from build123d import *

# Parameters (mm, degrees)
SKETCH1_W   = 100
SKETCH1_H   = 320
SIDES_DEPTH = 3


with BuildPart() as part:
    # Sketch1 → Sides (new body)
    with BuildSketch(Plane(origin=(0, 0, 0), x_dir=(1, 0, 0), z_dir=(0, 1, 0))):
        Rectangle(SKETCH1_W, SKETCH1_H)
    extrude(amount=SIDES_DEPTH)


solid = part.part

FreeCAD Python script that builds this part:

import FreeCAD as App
import Part
import Sketcher

V = App.Vector


def add_polygon(sketch, points):
    """Adds a closed chain of lines whose ends are joined by coincident constraints."""
    first, n = sketch.GeometryCount, len(points)
    for a, b in zip(points, points[1:] + points[:1]):
        sketch.addGeometry(Part.LineSegment(App.Vector(*a, 0), App.Vector(*b, 0)), False)
    for i in range(n):
        sketch.addConstraint(Sketcher.Constraint("Coincident", first + i, 2, first + (i + 1) % n, 1))

doc = App.newDocument("Part")
body = doc.addObject("PartDesign::Body", "Body")

sketch1 = body.newObject("Sketcher::SketchObject", "Sketch")
sketch1.AttachmentSupport = (doc.getObject("XZ_Plane"), [""])
sketch1.MapMode = "FlatFace"
add_polygon(sketch1, [(-50, -160), (-50, 160), (50, 160), (50, -160)])
sketch1.addConstraint([
    Sketcher.Constraint("Vertical", 0),
    Sketcher.Constraint("Horizontal", 1),
    Sketcher.Constraint("Vertical", 2),
    Sketcher.Constraint("Horizontal", 3),
    Sketcher.Constraint("Symmetric", 0, 2, 2, 2, -1, 1),
    Sketcher.Constraint("DistanceX", 1, 1, 1, 2, 100.0),
    Sketcher.Constraint("DistanceY", 0, 1, 0, 2, 320.0),
])
pad1 = body.newObject("PartDesign::Pad", "Pad")
pad1.Profile = sketch1
pad1.Length = 3
pad1.Reversed = True

doc.recompute()
